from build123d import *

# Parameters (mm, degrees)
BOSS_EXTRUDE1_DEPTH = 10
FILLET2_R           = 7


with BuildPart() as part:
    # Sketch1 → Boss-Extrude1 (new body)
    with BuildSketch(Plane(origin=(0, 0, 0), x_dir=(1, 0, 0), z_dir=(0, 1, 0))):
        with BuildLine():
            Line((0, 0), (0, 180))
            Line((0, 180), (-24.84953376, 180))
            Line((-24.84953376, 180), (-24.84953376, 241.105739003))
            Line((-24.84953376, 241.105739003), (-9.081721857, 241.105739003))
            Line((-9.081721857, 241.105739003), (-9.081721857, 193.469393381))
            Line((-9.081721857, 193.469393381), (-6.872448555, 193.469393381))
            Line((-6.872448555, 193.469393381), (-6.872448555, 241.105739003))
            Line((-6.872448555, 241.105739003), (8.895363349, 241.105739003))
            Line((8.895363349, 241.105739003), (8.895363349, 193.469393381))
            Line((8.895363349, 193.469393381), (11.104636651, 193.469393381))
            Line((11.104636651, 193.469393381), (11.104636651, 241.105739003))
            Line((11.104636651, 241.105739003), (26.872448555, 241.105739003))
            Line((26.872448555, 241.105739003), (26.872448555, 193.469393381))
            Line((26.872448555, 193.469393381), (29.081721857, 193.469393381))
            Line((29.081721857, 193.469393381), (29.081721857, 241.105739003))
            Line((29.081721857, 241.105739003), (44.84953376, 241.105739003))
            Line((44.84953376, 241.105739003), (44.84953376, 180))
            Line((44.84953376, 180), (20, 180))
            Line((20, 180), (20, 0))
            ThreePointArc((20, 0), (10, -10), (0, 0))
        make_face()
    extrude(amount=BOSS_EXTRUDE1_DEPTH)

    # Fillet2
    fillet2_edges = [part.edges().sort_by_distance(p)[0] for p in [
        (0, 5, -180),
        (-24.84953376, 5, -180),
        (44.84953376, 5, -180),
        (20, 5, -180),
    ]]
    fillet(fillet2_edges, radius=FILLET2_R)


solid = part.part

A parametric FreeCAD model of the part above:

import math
import FreeCAD as App
import Part
import Sketcher
from FreeCAD import Vector


def edges_at(feature, points):
    """Names of the edges that pass closest to the given points."""
    edges = feature.Shape.Edges
    near = lambda p: min(range(len(edges)), key=lambda i: edges[i].distToShape(Part.Vertex(*p))[0])
    return sorted({f"Edge{near(p) + 1}" for p in points})

doc = App.newDocument("Part")
body = doc.addObject("PartDesign::Body", "Body")

# Sketch on XZ plane
sketch1 = body.newObject("Sketcher::SketchObject", "Sketch")
sketch1.AttachmentSupport = (doc.getObject("XZ_Plane"), [""])
sketch1.MapMode = "FlatFace"
sketch1.addGeometry(Part.LineSegment(Vector(0, -180, 0), Vector(0, 0, 0)), False)
sketch1.addGeometry(Part.ArcOfCircle(Part.Circle(Vector(10, 0, 0), Vector(0, 0, 1), 10), math.radians(0), math.radians(180)), False)
sketch1.addGeometry(Part.LineSegment(Vector(20, 0, 0), Vector(20, -180, 0)), False)
sketch1.addGeometry(Part.LineSegment(Vector(20, -180, 0), Vector(44.849534, -180, 0)), False)
sketch1.addGeometry(Part.LineSegment(Vector(44.849534, -180, 0), Vector(44.849534, -241.105739, 0)), False)
sketch1.addGeometry(Part.LineSegment(Vector(44.849534, -241.105739, 0), Vector(29.081722, -241.105739, 0)), False)
sketch1.addGeometry(Part.LineSegment(Vector(29.081722, -241.105739, 0), Vector(29.081722, -193.469393, 0)), False)
sketch1.addGeometry(Part.LineSegment(Vector(29.081722, -193.469393, 0), Vector(26.872449, -193.469393, 0)), False)
sketch1.addGeometry(Part.LineSegment(Vector(26.872449, -193.469393, 0), Vector(26.872449, -241.105739, 0)), False)
sketch1.addGeometry(Part.LineSegment(Vector(26.872449, -241.105739, 0), Vector(11.104637, -241.105739, 0)), False)
sketch1.addGeometry(Part.LineSegment(Vector(11.104637, -241.105739, 0), Vector(11.104637, -193.469393, 0)), False)
sketch1.addGeometry(Part.LineSegment(Vector(11.104637, -193.469393, 0), Vector(8.895363, -193.469393, 0)), False)
sketch1.addGeometry(Part.LineSegment(Vector(8.895363, -193.469393, 0), Vector(8.895363, -241.105739, 0)), False)
sketch1.addGeometry(Part.LineSegment(Vector(8.895363, -241.105739, 0), Vector(-6.872449, -241.105739, 0)), False)
sketch1.addGeometry(Part.LineSegment(Vector(-6.872449, -241.105739, 0), Vector(-6.872449, -193.469393, 0)), False)
sketch1.addGeometry(Part.LineSegment(Vector(-6.872449, -193.469393, 0), Vector(-9.081722, -193.469393, 0)), False)
sketch1.addGeometry(Part.LineSegment(Vector(-9.081722, -193.469393, 0), Vector(-9.081722, -241.105739, 0)), False)
sketch1.addGeometry(Part.LineSegment(Vector(-9.081722, -241.105739, 0), Vector(-24.849534, -241.105739, 0)), False)
sketch1.addGeometry(Part.LineSegment(Vector(-24.849534, -241.105739, 0), Vector(-24.849534, -180, 0)), False)
sketch1.addGeometry(Part.LineSegment(Vector(-24.849534, -180, 0), Vector(0, -180, 0)), False)
sketch1.addConstraint(Sketcher.Constraint("Tangent", 0, 2, 1, 2))
sketch1.addConstraint(Sketcher.Constraint("Tangent", 1, 1, 2, 1))
sketch1.addConstraint(Sketcher.Constraint("Coincident", 2, 2, 3, 1))
sketch1.addConstraint(Sketcher.Constraint("Coincident", 3, 2, 4, 1))
sketch1.addConstraint(Sketcher.Constraint("Coincident", 4, 2, 5, 1))
sketch1.addConstraint(Sketcher.Constraint("Coincident", 5, 2, 6, 1))
sketch1.addConstraint(Sketcher.Constraint("Coincident", 6, 2, 7, 1))
sketch1.addConstraint(Sketcher.Constraint("Coincident", 7, 2, 8, 1))
sketch1.addConstraint(Sketcher.Constraint("Coincident", 8, 2, 9, 1))
sketch1.addConstraint(Sketcher.Constraint("Coincident", 9, 2, 10, 1))
sketch1.addConstraint(Sketcher.Constraint("Coincident", 10, 2, 11, 1))
sketch1.addConstraint(Sketcher.Constraint("Coincident", 11, 2, 12, 1))
sketch1.addConstraint(Sketcher.Constraint("Coincident", 12, 2, 13, 1))
sketch1.addConstraint(Sketcher.Constraint("Coincident", 13, 2, 14, 1))
sketch1.addConstraint(Sketcher.Constraint("Coincident", 14, 2, 15, 1))
sketch1.addConstraint(Sketcher.Constraint("Coincident", 15, 2, 16, 1))
sketch1.addConstraint(Sketcher.Constraint("Coincident", 16, 2, 17, 1))
sketch1.addConstraint(Sketcher.Constraint("Coincident", 17, 2, 18, 1))
sketch1.addConstraint(Sketcher.Constraint("Coincident", 18, 2, 19, 1))
sketch1.addConstraint(Sketcher.Constraint("Coincident", 19, 2, 0, 1))
sketch1.addConstraint(Sketcher.Constraint("Vertical", 0))
sketch1.addConstraint(Sketcher.Constraint("Vertical", 2))
sketch1.addConstraint(Sketcher.Constraint("Horizontal", 3))
sketch1.addConstraint(Sketcher.Constraint("Vertical", 4))
sketch1.addConstraint(Sketcher.Constraint("Horizontal", 5))
sketch1.addConstraint(Sketcher.Constraint("Vertical", 6))
sketch1.addConstraint(Sketcher.Constraint("Horizontal", 7))
sketch1.addConstraint(Sketcher.Constraint("Vertical", 8))
sketch1.addConstraint(Sketcher.Constraint("Horizontal", 9))
sketch1.addConstraint(Sketcher.Constraint("Vertical", 10))
sketch1.addConstraint(Sketcher.Constraint("Horizontal", 11))
sketch1.addConstraint(Sketcher.Constraint("Vertical", 12))
sketch1.addConstraint(Sketcher.Constraint("Horizontal", 13))
sketch1.addConstraint(Sketcher.Constraint("Vertical", 14))
sketch1.addConstraint(Sketcher.Constraint("Horizontal", 15))
sketch1.addConstraint(Sketcher.Constraint("Vertical", 16))
sketch1.addConstraint(Sketcher.Constraint("Horizontal", 17))
sketch1.addConstraint(Sketcher.Constraint("Vertical", 18))
sketch1.addConstraint(Sketcher.Constraint("Horizontal", 19))
sketch1.addConstraint(Sketcher.Constraint("Coincident", 0, 2, -1, 1))
sketch1.addConstraint(Sketcher.Constraint("Horizontal", 5, 2, 8, 2))
sketch1.addConstraint(Sketcher.Constraint("Horizontal", 7, 2, 10, 2))
sketch1.addConstraint(Sketcher.Constraint("Horizontal", 9, 2, 12, 2))
sketch1.addConstraint(Sketcher.Constraint("Horizontal", 11, 2, 14, 2))
sketch1.addConstraint(Sketcher.Constraint("Horizontal", 13, 2, 16, 2))
sketch1.addConstraint(Sketcher.Constraint("Horizontal", 3, 2, 18, 2))
sketch1.addConstraint(Sketcher.Constraint("Equal", 5, 9))
sketch1.addConstraint(Sketcher.Constraint("Equal", 7, 11))
sketch1.addConstraint(Sketcher.Constraint("Equal", 9, 13))
sketch1.addConstraint(Sketcher.Constraint("Equal", 11, 15))
sketch1.addConstraint(Sketcher.Constraint("Equal", 13, 17))
sketch1.addConstraint(Sketcher.Constraint("Equal", 3, 19))
sketch1.addConstraint(Sketcher.Constraint("Radius", 1, 10.0))
sketch1.addConstraint(Sketcher.Constraint("DistanceY", 0, 1, 0, 2, 180.0))
sketch1.addConstraint(Sketcher.Constraint("DistanceX", 5, 2, 5, 1, 15.767812))
sketch1.addConstraint(Sketcher.Constraint("DistanceY", 4, 2, 4, 1, 61.105739))
sketch1.addConstraint(Sketcher.Constraint("DistanceX", 3, 1, 3, 2, 24.849534))
sketch1.addConstraint(Sketcher.Constraint("DistanceY", 6, 1, 6, 2, 47.636346))
pad1 = body.newObject("PartDesign::Pad", "Pad")
pad1.Profile = sketch1
pad1.Length = 10
pad1.Reversed = True
doc.recompute()

fillet = body.newObject("PartDesign::Fillet", "Fillet")
fillet.Base = (pad1, edges_at(pad1, [
    (0, 5, -180),
    (-24.85, 5, -180),
    (44.85, 5, -180),
    (20, 5, -180),
]))
fillet.Radius = 7

doc.recompute()
